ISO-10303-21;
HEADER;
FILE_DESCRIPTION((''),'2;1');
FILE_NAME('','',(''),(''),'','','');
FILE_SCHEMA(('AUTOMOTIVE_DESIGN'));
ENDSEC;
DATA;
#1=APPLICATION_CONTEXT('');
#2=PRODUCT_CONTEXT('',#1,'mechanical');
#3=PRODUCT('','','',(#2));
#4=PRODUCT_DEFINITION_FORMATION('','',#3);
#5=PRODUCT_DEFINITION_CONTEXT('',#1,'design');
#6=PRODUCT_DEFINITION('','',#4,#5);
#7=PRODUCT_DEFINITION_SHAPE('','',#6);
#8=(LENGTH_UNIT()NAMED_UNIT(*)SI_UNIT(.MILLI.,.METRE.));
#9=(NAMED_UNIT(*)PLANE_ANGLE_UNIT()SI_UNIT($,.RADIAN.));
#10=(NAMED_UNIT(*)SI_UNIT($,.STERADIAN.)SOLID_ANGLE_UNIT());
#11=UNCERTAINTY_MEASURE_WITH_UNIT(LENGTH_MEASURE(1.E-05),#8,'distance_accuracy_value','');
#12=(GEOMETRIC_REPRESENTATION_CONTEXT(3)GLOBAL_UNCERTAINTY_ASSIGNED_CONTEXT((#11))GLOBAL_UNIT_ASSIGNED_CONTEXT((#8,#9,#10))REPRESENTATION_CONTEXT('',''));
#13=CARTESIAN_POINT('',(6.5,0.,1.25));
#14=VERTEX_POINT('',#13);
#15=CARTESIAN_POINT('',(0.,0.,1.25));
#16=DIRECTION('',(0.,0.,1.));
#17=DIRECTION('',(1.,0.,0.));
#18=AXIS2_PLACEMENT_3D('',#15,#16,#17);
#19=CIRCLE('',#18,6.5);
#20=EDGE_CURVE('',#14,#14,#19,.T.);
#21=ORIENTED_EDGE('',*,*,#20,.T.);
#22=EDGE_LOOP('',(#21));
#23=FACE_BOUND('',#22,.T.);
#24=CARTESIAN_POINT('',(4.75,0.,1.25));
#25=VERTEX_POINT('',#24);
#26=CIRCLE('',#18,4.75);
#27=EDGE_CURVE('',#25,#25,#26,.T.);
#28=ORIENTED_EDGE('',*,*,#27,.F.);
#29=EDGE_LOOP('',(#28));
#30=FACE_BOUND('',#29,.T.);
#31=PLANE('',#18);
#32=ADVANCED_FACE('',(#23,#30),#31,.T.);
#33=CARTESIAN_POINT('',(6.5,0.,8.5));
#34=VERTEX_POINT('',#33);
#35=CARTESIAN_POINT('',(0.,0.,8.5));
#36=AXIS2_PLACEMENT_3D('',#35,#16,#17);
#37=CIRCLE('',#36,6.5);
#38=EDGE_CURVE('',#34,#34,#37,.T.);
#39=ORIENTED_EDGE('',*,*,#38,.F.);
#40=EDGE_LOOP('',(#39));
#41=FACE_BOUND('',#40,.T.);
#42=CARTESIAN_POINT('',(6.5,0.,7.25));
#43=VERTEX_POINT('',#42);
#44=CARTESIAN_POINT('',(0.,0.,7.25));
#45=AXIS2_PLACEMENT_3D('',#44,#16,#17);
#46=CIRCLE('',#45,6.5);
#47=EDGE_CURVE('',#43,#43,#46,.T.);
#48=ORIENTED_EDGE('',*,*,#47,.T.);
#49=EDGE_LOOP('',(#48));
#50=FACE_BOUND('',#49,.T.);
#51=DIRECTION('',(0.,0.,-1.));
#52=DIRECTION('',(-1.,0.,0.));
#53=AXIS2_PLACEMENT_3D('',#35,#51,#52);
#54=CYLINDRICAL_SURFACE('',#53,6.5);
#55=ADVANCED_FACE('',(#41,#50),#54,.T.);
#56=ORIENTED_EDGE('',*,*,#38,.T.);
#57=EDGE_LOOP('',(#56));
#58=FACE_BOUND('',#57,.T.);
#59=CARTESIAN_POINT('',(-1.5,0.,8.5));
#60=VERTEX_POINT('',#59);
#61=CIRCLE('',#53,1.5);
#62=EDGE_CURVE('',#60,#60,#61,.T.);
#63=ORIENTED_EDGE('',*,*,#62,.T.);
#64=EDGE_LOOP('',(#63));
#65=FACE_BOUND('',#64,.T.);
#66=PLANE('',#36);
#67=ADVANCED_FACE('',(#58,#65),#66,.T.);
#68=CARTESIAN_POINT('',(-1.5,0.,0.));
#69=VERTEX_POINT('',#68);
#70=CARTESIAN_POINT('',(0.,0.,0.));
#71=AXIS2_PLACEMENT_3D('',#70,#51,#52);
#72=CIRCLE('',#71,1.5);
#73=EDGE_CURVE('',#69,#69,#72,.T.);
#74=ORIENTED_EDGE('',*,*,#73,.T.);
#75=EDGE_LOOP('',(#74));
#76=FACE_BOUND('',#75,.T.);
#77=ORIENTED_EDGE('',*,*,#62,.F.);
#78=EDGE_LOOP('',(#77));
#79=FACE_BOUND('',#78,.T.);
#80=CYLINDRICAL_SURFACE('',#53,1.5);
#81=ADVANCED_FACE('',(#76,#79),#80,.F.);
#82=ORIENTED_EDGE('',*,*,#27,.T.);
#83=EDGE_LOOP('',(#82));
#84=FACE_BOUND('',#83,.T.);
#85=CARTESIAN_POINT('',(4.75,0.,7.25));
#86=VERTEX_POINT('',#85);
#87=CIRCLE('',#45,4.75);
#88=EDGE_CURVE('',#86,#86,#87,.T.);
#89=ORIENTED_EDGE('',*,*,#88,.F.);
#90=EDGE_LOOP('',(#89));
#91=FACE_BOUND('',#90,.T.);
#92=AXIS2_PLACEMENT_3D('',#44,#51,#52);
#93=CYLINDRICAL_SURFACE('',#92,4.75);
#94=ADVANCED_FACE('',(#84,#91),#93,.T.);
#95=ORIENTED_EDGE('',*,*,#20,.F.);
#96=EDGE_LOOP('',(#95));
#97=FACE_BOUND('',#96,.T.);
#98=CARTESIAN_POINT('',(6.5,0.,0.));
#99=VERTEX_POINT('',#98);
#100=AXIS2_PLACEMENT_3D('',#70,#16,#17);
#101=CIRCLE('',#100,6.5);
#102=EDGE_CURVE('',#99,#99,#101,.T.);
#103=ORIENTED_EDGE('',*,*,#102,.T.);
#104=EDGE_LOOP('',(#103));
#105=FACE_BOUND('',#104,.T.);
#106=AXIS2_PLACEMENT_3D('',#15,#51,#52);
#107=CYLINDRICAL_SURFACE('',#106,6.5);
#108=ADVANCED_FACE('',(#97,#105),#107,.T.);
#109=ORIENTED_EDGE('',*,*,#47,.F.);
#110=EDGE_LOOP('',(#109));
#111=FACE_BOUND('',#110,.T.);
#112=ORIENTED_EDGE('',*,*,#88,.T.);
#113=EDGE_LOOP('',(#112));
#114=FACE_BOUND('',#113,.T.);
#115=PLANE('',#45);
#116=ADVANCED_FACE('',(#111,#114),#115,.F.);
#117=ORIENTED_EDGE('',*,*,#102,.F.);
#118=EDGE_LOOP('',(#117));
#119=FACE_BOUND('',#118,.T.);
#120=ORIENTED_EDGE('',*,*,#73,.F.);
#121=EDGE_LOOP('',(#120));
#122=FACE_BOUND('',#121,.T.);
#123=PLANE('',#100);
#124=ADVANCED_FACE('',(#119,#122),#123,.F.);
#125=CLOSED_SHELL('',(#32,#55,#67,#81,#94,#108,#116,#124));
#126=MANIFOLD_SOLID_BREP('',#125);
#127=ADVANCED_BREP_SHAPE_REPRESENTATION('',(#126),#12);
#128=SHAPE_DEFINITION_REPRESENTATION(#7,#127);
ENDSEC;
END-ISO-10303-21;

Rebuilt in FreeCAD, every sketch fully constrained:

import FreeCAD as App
import Part
import Sketcher

doc = App.newDocument("Part")
params = doc.addObject("Spreadsheet::Sheet", "Params")
for row, (alias, value) in enumerate([
    ("sketch1_diameter", "13 mm"),
    ("pad1_length", "1.25 mm"),
    ("sketch2_diameter", "9.5 mm"),
    ("pad2_length", "6 mm"),
    ("sketch3_diameter", "13 mm"),
    ("pad3_length", "1.25 mm"),
    ("sketch4_diameter", "3 mm"),
], start=1):
    params.set(f"A{row}", alias)
    params.set(f"B{row}", "=" + value)
    params.setAlias(f"B{row}", alias)

body = doc.addObject("PartDesign::Body", "Body")

sketch1 = doc.addObject("Sketcher::SketchObject", "Sketch")
body.addObject(sketch1)
sketch1.AttachmentSupport = (doc.XY_Plane, [""])
sketch1.MapMode = "FlatFace"
sketch1.addGeometry(Part.Circle(App.Vector(0, 0, 0), App.Vector(0, 0, 1), 6), False)
sketch1.addConstraint([
    Sketcher.Constraint("Coincident", 0, 3, -1, 1),
    Sketcher.Constraint("Diameter", 0, 13.0),
])
sketch1.setExpression("Constraints[1]", "Params.sketch1_diameter")
pad1 = doc.addObject("PartDesign::Pad", "Pad")
body.addObject(pad1)
pad1.Profile = sketch1
pad1.setExpression("Length", "Params.pad1_length")

sketch2 = doc.addObject("Sketcher::SketchObject", "Sketch001")
body.addObject(sketch2)
sketch2.AttachmentSupport = (doc.XY_Plane, [""])
sketch2.MapMode = "FlatFace"
sketch2.AttachmentOffset = App.Placement(App.Vector(0, 0, 1.25), App.Rotation())
sketch2.addGeometry(Part.Circle(App.Vector(0, 0, 0), App.Vector(0, 0, 1), 4.8), False)
sketch2.addConstraint([
    Sketcher.Constraint("Coincident", 0, 3, -1, 1),
    Sketcher.Constraint("Diameter", 0, 9.5),
])
sketch2.setExpression("Constraints[1]", "Params.sketch2_diameter")
pad2 = doc.addObject("PartDesign::Pad", "Pad001")
body.addObject(pad2)
pad2.Profile = sketch2
pad2.setExpression("Length", "Params.pad2_length")

sketch3 = doc.addObject("Sketcher::SketchObject", "Sketch002")
body.addObject(sketch3)
sketch3.AttachmentSupport = (doc.XY_Plane, [""])
sketch3.MapMode = "FlatFace"
sketch3.AttachmentOffset = App.Placement(App.Vector(0, 0, 7.25), App.Rotation())
sketch3.addGeometry(Part.Circle(App.Vector(0, 0, 0), App.Vector(0, 0, 1), 6), False)
sketch3.addConstraint([
    Sketcher.Constraint("Coincident", 0, 3, -1, 1),
    Sketcher.Constraint("Diameter", 0, 13.0),
])
sketch3.setExpression("Constraints[1]", "Params.sketch3_diameter")
pad3 = doc.addObject("PartDesign::Pad", "Pad002")
body.addObject(pad3)
pad3.Profile = sketch3
pad3.setExpression("Length", "Params.pad3_length")

sketch4 = doc.addObject("Sketcher::SketchObject", "Sketch003")
body.addObject(sketch4)
sketch4.AttachmentSupport = (doc.XY_Plane, [""])
sketch4.MapMode = "FlatFace"
sketch4.addGeometry(Part.Circle(App.Vector(0, 0, 0), App.Vector(0, 0, 1), 1.5), False)
sketch4.addConstraint([
    Sketcher.Constraint("Coincident", 0, 3, -1, 1),
    Sketcher.Constraint("Diameter", 0, 3.0),
])
sketch4.setExpression("Constraints[1]", "Params.sketch4_diameter")
pocket1 = doc.addObject("PartDesign::Pocket", "Pocket")
body.addObject(pocket1)
pocket1.Profile = sketch4
pocket1.Type = "ThroughAll"
pocket1.Reversed = True

doc.recompute()
